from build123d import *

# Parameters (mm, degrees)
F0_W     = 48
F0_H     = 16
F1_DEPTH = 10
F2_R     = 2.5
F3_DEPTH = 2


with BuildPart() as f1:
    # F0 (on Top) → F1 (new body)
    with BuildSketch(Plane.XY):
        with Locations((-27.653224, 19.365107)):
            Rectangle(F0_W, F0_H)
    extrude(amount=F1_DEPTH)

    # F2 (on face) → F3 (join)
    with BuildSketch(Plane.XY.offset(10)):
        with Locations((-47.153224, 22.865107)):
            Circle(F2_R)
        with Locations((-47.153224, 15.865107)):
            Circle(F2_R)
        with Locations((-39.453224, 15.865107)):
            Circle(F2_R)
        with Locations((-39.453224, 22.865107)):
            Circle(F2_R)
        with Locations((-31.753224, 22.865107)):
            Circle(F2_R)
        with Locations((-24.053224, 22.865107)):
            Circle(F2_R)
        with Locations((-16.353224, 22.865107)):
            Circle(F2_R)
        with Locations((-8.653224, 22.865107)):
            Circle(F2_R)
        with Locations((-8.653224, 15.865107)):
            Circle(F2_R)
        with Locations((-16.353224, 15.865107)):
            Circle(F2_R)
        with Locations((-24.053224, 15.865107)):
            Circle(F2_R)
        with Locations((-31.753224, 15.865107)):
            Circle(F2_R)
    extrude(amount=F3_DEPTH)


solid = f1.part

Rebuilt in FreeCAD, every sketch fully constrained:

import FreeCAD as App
import Part
import Sketcher
Q = App.Units.Quantity


def add_polygon(sketch, points):
    """Adds a closed chain of lines whose ends are joined by coincident constraints."""
    first, n = sketch.GeometryCount, len(points)
    for a, b in zip(points, points[1:] + points[:1]):
        sketch.addGeometry(Part.LineSegment(App.Vector(*a, 0), App.Vector(*b, 0)), False)
    for i in range(n):
        sketch.addConstraint(Sketcher.Constraint("Coincident", first + i, 2, first + (i + 1) % n, 1))

doc = App.newDocument("Part")
params = doc.addObject("Spreadsheet::Sheet", "Params")
for row, (alias, value) in enumerate([
    ("sketch1_width", "48 mm"),
    ("sketch1_height", "16 mm"),
    ("pad1_length", "10 mm"),
    ("sketch2_diameter", "5 mm"),
    ("pad2_length", "2 mm"),
], start=1):
    params.set(f"A{row}", alias)
    params.set(f"B{row}", "=" + value)
    params.setAlias(f"B{row}", alias)

body = doc.addObject("PartDesign::Body", "Body")

# Sketch on XY plane
sketch1 = body.newObject("Sketcher::SketchObject", "Sketch")
sketch1.AttachmentSupport = (doc.getObject("XY_Plane"), [""])
sketch1.MapMode = "FlatFace"
add_polygon(sketch1, [(-52, 27), (-52, 11), (-4, 11), (-4, 27)])  # lines 0-3
sketch1.addConstraint(Sketcher.Constraint("Vertical", 0))
sketch1.addConstraint(Sketcher.Constraint("Horizontal", 1))
sketch1.addConstraint(Sketcher.Constraint("Vertical", 2))
sketch1.addConstraint(Sketcher.Constraint("Horizontal", 3))
sketch1.addConstraint(Sketcher.Constraint("DistanceX", 1, 1, 1, 2, Q("48 mm")))
sketch1.addConstraint(Sketcher.Constraint("DistanceY", 0, 2, 0, 1, Q("16 mm")))
sketch1.addConstraint(Sketcher.Constraint("DistanceX", 0, 2, -1, 1, Q("51.653224 mm")))
sketch1.addConstraint(Sketcher.Constraint("DistanceY", -1, 1, 0, 2, Q("11.365107 mm")))
sketch1.setExpression("Constraints[8]", "Params.sketch1_width")
sketch1.setExpression("Constraints[9]", "Params.sketch1_height")
pad1 = body.newObject("PartDesign::Pad", "Pad")
pad1.Profile = sketch1
pad1.setExpression("Length", "Params.pad1_length")

# Sketch on XY plane
sketch2 = body.newObject("Sketcher::SketchObject", "Sketch001")
sketch2.AttachmentSupport = (doc.getObject("XY_Plane"), [""])
sketch2.MapMode = "FlatFace"
sketch2.AttachmentOffset = App.Placement(App.Vector(0, 0, 10), App.Rotation())
sketch2.addGeometry(Part.Circle(App.Vector(-47.2, 22.9, 0), App.Vector(0, 0, 1), 2.5), False)
sketch2.addGeometry(Part.Circle(App.Vector(-47.2, 15.9, 0), App.Vector(0, 0, 1), 2.5), False)
sketch2.addGeometry(Part.Circle(App.Vector(-39.5, 15.9, 0), App.Vector(0, 0, 1), 2.5), False)
sketch2.addGeometry(Part.Circle(App.Vector(-39.5, 22.9, 0), App.Vector(0, 0, 1), 2.5), False)
sketch2.addGeometry(Part.Circle(App.Vector(-31.8, 22.9, 0), App.Vector(0, 0, 1), 2.5), False)
sketch2.addGeometry(Part.Circle(App.Vector(-24.1, 22.9, 0), App.Vector(0, 0, 1), 2.5), False)
sketch2.addGeometry(Part.Circle(App.Vector(-16.4, 22.9, 0), App.Vector(0, 0, 1), 2.5), False)
sketch2.addGeometry(Part.Circle(App.Vector(-8.7, 22.9, 0), App.Vector(0, 0, 1), 2.5), False)
sketch2.addGeometry(Part.Circle(App.Vector(-8.7, 15.9, 0), App.Vector(0, 0, 1), 2.5), False)
sketch2.addGeometry(Part.Circle(App.Vector(-16.4, 15.9, 0), App.Vector(0, 0, 1), 2.5), False)
sketch2.addGeometry(Part.Circle(App.Vector(-24.1, 15.9, 0), App.Vector(0, 0, 1), 2.5), False)
sketch2.addGeometry(Part.Circle(App.Vector(-31.8, 15.9, 0), App.Vector(0, 0, 1), 2.5), False)
sketch2.addConstraint(Sketcher.Constraint("Equal", 0, 1))
sketch2.addConstraint(Sketcher.Constraint("Equal", 1, 2))
sketch2.addConstraint(Sketcher.Constraint("Equal", 2, 3))
sketch2.addConstraint(Sketcher.Constraint("Equal", 3, 4))
sketch2.addConstraint(Sketcher.Constraint("Equal", 4, 5))
sketch2.addConstraint(Sketcher.Constraint("Equal", 5, 6))
sketch2.addConstraint(Sketcher.Constraint("Equal", 6, 7))
sketch2.addConstraint(Sketcher.Constraint("Equal", 7, 8))
sketch2.addConstraint(Sketcher.Constraint("Equal", 8, 9))
sketch2.addConstraint(Sketcher.Constraint("Equal", 9, 10))
sketch2.addConstraint(Sketcher.Constraint("Equal", 10, 11))
sketch2.addConstraint(Sketcher.Constraint("Horizontal", 1, 3, 2, 3))
sketch2.addConstraint(Sketcher.Constraint("Horizontal", 0, 3, 3, 3))
sketch2.addConstraint(Sketcher.Constraint("Horizontal", 3, 3, 4, 3))
sketch2.addConstraint(Sketcher.Constraint("Horizontal", 4, 3, 5, 3))
sketch2.addConstraint(Sketcher.Constraint("Horizontal", 5, 3, 6, 3))
sketch2.addConstraint(Sketcher.Constraint("Horizontal", 6, 3, 7, 3))
sketch2.addConstraint(Sketcher.Constraint("Horizontal", 2, 3, 8, 3))
sketch2.addConstraint(Sketcher.Constraint("Horizontal", 8, 3, 9, 3))
sketch2.addConstraint(Sketcher.Constraint("Horizontal", 9, 3, 10, 3))
sketch2.addConstraint(Sketcher.Constraint("Horizontal", 10, 3, 11, 3))
sketch2.addConstraint(Sketcher.Constraint("Vertical", 0, 3, 1, 3))
sketch2.addConstraint(Sketcher.Constraint("Vertical", 2, 3, 3, 3))
sketch2.addConstraint(Sketcher.Constraint("Vertical", 7, 3, 8, 3))
sketch2.addConstraint(Sketcher.Constraint("Vertical", 6, 3, 9, 3))
sketch2.addConstraint(Sketcher.Constraint("Vertical", 5, 3, 10, 3))
sketch2.addConstraint(Sketcher.Constraint("Vertical", 4, 3, 11, 3))
sketch2.addConstraint(Sketcher.Constraint("Diameter", 0, Q("5 mm")))
sketch2.addConstraint(Sketcher.Constraint("DistanceY", 1, 3, 0, 3, Q("7 mm")))
sketch2.addConstraint(Sketcher.Constraint("DistanceX", 1, 3, 2, 3, Q("7.7 mm")))
sketch2.addConstraint(Sketcher.Constraint("DistanceX", 3, 3, 4, 3, Q("7.7 mm")))
sketch2.addConstraint(Sketcher.Constraint("DistanceX", 4, 3, 5, 3, Q("7.7 mm")))
sketch2.addConstraint(Sketcher.Constraint("DistanceX", 5, 3, 6, 3, Q("7.7 mm")))
sketch2.addConstraint(Sketcher.Constraint("DistanceX", 6, 3, 7, 3, Q("7.7 mm")))
sketch2.addConstraint(Sketcher.Constraint("DistanceX", 0, 3, -1, 1, Q("47.153224 mm")))
sketch2.addConstraint(Sketcher.Constraint("DistanceY", -1, 1, 0, 3, Q("22.865107 mm")))
sketch2.setExpression("Constraints[27]", "Params.sketch2_diameter")
pad2 = body.newObject("PartDesign::Pad", "Pad001")
pad2.Profile = sketch2
pad2.setExpression("Length", "Params.pad2_length")

doc.recompute()
